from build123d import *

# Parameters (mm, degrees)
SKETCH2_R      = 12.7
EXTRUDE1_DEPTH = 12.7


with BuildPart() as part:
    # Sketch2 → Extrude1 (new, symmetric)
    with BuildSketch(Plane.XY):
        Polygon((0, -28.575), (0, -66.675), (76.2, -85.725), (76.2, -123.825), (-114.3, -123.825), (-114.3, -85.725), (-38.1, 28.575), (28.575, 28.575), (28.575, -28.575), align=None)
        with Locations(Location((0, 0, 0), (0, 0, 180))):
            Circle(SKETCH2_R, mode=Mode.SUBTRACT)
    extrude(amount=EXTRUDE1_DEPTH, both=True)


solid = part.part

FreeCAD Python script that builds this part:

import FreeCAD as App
import Part
import Sketcher
from FreeCAD import Vector
Q = App.Units.Quantity

doc = App.newDocument("Part")
body = doc.addObject("PartDesign::Body", "Body")

sketch1 = body.newObject("Sketcher::SketchObject", "Sketch")
sketch1.AttachmentSupport = (doc.getObject("XY_Plane"), [""])
sketch1.MapMode = "FlatFace"
sketch1.addGeometry([
    Part.LineSegment(Vector(0, -67, 0), Vector(0, -29, 0)),
    Part.LineSegment(Vector(0, -29, 0), Vector(29, -29, 0)),
    Part.LineSegment(Vector(29, -29, 0), Vector(29, 29, 0)),
    Part.LineSegment(Vector(29, 29, 0), Vector(-38, 29, 0)),
    Part.LineSegment(Vector(-38, 29, 0), Vector(-114, -86, 0)),
    Part.LineSegment(Vector(-114, -86, 0), Vector(-114, -124, 0)),
    Part.LineSegment(Vector(-114, -124, 0), Vector(76, -124, 0)),
    Part.LineSegment(Vector(76, -124, 0), Vector(76, -86, 0)),
    Part.LineSegment(Vector(76, -86, 0), Vector(0, -67, 0)),
    Part.Circle(Vector(0, 0, 0), Vector(0, 0, 1), 13),
], False)
sketch1.addConstraint([
    Sketcher.Constraint("Coincident", 0, 2, 1, 1),
    Sketcher.Constraint("Coincident", 1, 2, 2, 1),
    Sketcher.Constraint("Coincident", 2, 2, 3, 1),
    Sketcher.Constraint("Coincident", 3, 2, 4, 1),
    Sketcher.Constraint("Coincident", 4, 2, 5, 1),
    Sketcher.Constraint("Coincident", 5, 2, 6, 1),
    Sketcher.Constraint("Coincident", 6, 2, 7, 1),
    Sketcher.Constraint("Coincident", 7, 2, 8, 1),
    Sketcher.Constraint("Coincident", 8, 2, 0, 1),
    Sketcher.Constraint("Vertical", 0),
    Sketcher.Constraint("Horizontal", 1),
    Sketcher.Constraint("Vertical", 2),
    Sketcher.Constraint("Horizontal", 3),
    Sketcher.Constraint("Vertical", 5),
    Sketcher.Constraint("Horizontal", 6),
    Sketcher.Constraint("Vertical", 7),
    Sketcher.Constraint("Coincident", 9, 3, -1, 1),
    Sketcher.Constraint("PointOnObject", 0, 2, -2),
    Sketcher.Constraint("Horizontal", 4, 2, 7, 2),
    Sketcher.Constraint("Equal", 0, 5),
    Sketcher.Constraint("Diameter", 9, Q("1 in")),
    Sketcher.Constraint("DistanceX", 6, 1, 6, 2, Q("7.5 in")),
    Sketcher.Constraint("DistanceY", 0, 1, 0, 2, Q("1.5 in")),
    Sketcher.Constraint("DistanceX", -1, 1, 6, 2, Q("3 in")),
    Sketcher.Constraint("DistanceX", 4, 2, 3, 2, Q("3 in")),
    Sketcher.Constraint("DistanceY", 5, 2, 3, 2, Q("6 in")),
    Sketcher.Constraint("DistanceY", 2, 1, 2, 2, Q("2.25 in")),
    Sketcher.Constraint("DistanceX", 1, 1, 1, 2, Q("1.125 in")),
    Sketcher.Constraint("DistanceY", 0, 2, -1, 1, Q("1.125 in")),
])
pad1 = body.newObject("PartDesign::Pad", "Pad")
pad1.Profile = sketch1
pad1.Length = Q("1 in")
pad1.Midplane = True

doc.recompute()
